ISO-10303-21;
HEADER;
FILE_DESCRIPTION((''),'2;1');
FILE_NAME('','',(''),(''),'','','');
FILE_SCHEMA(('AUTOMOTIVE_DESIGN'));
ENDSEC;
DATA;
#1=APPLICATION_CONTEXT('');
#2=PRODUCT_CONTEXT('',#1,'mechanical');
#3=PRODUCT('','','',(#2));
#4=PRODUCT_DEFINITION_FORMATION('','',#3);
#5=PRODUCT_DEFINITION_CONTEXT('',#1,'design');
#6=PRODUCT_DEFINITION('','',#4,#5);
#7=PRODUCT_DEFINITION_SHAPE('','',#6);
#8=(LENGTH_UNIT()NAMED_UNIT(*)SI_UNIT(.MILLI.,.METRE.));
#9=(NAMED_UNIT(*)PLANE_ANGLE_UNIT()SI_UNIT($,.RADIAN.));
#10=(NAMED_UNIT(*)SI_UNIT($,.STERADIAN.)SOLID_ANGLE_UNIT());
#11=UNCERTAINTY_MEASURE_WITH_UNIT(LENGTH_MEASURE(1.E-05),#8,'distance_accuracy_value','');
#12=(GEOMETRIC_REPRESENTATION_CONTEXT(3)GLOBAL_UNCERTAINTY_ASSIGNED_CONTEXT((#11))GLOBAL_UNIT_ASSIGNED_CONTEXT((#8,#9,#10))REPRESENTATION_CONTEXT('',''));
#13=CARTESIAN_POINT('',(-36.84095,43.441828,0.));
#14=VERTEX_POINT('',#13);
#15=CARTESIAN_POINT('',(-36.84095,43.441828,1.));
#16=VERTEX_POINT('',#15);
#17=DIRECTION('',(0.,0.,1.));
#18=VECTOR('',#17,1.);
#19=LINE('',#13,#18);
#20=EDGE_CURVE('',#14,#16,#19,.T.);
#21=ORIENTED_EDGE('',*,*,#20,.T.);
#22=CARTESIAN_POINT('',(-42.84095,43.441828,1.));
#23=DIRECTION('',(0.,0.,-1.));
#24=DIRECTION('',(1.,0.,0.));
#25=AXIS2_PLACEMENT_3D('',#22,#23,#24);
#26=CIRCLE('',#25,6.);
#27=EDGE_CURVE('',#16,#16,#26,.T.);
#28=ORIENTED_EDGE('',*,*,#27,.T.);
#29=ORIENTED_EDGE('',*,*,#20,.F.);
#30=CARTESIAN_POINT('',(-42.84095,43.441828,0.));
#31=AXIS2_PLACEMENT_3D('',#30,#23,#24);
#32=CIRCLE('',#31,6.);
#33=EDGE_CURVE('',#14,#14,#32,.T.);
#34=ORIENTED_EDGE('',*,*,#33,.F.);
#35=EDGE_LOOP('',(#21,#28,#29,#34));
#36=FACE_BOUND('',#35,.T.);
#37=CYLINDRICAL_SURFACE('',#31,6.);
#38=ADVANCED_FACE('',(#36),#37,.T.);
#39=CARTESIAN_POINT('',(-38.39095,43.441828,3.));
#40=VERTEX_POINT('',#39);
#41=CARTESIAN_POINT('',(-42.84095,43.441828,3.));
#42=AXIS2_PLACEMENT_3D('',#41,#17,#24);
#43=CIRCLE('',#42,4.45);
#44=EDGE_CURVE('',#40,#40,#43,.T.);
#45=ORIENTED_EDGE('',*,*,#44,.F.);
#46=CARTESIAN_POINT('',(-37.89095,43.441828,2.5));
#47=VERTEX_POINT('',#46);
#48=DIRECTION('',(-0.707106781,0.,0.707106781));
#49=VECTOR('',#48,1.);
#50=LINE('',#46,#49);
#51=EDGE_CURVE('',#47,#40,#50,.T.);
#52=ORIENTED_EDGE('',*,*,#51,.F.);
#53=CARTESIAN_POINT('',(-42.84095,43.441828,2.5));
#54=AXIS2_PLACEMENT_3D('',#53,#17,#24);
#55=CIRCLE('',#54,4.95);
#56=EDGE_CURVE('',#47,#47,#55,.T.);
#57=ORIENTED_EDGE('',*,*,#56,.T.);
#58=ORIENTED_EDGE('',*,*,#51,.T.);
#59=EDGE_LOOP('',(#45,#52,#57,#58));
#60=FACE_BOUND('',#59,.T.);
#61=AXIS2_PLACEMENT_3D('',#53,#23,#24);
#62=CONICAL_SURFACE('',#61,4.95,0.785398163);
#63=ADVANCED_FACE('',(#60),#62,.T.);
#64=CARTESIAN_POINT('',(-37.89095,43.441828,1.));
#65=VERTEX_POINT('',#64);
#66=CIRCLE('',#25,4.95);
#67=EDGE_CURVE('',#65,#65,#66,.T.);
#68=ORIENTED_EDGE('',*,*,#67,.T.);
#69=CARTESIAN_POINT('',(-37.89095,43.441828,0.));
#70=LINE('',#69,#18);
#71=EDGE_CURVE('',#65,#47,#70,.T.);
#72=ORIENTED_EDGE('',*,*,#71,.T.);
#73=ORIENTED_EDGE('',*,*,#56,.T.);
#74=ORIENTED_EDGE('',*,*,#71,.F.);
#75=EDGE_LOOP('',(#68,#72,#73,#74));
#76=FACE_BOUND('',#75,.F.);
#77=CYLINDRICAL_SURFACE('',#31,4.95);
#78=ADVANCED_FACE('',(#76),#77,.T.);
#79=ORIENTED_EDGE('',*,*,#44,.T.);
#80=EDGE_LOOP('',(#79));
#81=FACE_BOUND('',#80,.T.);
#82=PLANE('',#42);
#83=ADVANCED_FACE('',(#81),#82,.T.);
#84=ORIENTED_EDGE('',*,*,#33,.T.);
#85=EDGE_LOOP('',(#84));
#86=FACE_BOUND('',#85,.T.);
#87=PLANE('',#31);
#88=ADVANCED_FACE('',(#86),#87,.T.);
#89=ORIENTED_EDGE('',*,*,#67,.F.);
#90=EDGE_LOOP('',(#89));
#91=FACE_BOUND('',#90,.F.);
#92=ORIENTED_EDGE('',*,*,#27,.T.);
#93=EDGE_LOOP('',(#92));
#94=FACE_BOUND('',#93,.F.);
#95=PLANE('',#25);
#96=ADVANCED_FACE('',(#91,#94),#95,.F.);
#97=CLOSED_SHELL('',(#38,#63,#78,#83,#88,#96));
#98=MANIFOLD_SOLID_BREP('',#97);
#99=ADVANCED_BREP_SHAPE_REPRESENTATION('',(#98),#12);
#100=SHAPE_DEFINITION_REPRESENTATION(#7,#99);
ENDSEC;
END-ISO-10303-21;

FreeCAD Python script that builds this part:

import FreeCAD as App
import Part
import Sketcher
from FreeCAD import Vector


def edges_at(feature, points):
    """Names of the edges that pass closest to the given points."""
    edges = feature.Shape.Edges
    near = lambda p: min(range(len(edges)), key=lambda i: edges[i].distToShape(Part.Vertex(*p))[0])
    return sorted({f"Edge{near(p) + 1}" for p in points})

doc = App.newDocument("Part")
params = doc.addObject("Spreadsheet::Sheet", "Params")
for row, (alias, value) in enumerate([
    ("sketch1_diameter", "9.9 mm"),
    ("pad1_length", "3 mm"),
    ("sketch2_diameter", "12 mm"),
    ("sketch2_diameter2", "9.9 mm"),
    ("pad2_length", "1 mm"),
    ("chamfer_size", "0.5 mm"),
], start=1):
    params.set(f"A{row}", alias)
    params.set(f"B{row}", "=" + value)
    params.setAlias(f"B{row}", alias)

body = doc.addObject("PartDesign::Body", "Body")

# Sketch on XY plane
sketch1 = body.newObject("Sketcher::SketchObject", "Sketch")
sketch1.AttachmentSupport = (doc.getObject("XY_Plane"), [""])
sketch1.MapMode = "FlatFace"
sketch1.addGeometry(Part.Circle(Vector(-42.84095, 43.441828, 0), Vector(0, 0, 1), 4.95), False)
sketch1.addConstraint([
    Sketcher.Constraint("Diameter", 0, 9.9),
    Sketcher.Constraint("DistanceX", 0, 3, -1, 1, 42.84095),
    Sketcher.Constraint("DistanceY", -1, 1, 0, 3, 43.441828),
])
sketch1.setExpression("Constraints[0]", "Params.sketch1_diameter")
pad1 = body.newObject("PartDesign::Pad", "Pad")
pad1.Profile = sketch1
pad1.setExpression("Length", "Params.pad1_length")

# Sketch on XY plane
sketch2 = body.newObject("Sketcher::SketchObject", "Sketch001")
sketch2.AttachmentSupport = (doc.getObject("XY_Plane"), [""])
sketch2.MapMode = "FlatFace"
sketch2.addGeometry([
    Part.Circle(Vector(-42.84095, 43.441828, 0), Vector(0, 0, 1), 6),
    Part.Circle(Vector(-42.84095, 43.441828, 0), Vector(0, 0, 1), 4.95),
], False)
sketch2.addConstraint([
    Sketcher.Constraint("Coincident", 1, 3, 0, 3),
    Sketcher.Constraint("Diameter", 0, 12.0),
    Sketcher.Constraint("Diameter", 1, 9.9),
    Sketcher.Constraint("DistanceX", 0, 3, -1, 1, 42.84095),
    Sketcher.Constraint("DistanceY", -1, 1, 0, 3, 43.441828),
])
sketch2.setExpression("Constraints[1]", "Params.sketch2_diameter")
sketch2.setExpression("Constraints[2]", "Params.sketch2_diameter2")
pad2 = body.newObject("PartDesign::Pad", "Pad001")
pad2.Profile = sketch2
pad2.setExpression("Length", "Params.pad2_length")
doc.recompute()

chamfer = body.newObject("PartDesign::Chamfer", "Chamfer")
chamfer.Base = (pad2, edges_at(pad2, [(-47.791, 43.442, 3)]))
chamfer.setExpression("Size", "Params.chamfer_size")

doc.recompute()
